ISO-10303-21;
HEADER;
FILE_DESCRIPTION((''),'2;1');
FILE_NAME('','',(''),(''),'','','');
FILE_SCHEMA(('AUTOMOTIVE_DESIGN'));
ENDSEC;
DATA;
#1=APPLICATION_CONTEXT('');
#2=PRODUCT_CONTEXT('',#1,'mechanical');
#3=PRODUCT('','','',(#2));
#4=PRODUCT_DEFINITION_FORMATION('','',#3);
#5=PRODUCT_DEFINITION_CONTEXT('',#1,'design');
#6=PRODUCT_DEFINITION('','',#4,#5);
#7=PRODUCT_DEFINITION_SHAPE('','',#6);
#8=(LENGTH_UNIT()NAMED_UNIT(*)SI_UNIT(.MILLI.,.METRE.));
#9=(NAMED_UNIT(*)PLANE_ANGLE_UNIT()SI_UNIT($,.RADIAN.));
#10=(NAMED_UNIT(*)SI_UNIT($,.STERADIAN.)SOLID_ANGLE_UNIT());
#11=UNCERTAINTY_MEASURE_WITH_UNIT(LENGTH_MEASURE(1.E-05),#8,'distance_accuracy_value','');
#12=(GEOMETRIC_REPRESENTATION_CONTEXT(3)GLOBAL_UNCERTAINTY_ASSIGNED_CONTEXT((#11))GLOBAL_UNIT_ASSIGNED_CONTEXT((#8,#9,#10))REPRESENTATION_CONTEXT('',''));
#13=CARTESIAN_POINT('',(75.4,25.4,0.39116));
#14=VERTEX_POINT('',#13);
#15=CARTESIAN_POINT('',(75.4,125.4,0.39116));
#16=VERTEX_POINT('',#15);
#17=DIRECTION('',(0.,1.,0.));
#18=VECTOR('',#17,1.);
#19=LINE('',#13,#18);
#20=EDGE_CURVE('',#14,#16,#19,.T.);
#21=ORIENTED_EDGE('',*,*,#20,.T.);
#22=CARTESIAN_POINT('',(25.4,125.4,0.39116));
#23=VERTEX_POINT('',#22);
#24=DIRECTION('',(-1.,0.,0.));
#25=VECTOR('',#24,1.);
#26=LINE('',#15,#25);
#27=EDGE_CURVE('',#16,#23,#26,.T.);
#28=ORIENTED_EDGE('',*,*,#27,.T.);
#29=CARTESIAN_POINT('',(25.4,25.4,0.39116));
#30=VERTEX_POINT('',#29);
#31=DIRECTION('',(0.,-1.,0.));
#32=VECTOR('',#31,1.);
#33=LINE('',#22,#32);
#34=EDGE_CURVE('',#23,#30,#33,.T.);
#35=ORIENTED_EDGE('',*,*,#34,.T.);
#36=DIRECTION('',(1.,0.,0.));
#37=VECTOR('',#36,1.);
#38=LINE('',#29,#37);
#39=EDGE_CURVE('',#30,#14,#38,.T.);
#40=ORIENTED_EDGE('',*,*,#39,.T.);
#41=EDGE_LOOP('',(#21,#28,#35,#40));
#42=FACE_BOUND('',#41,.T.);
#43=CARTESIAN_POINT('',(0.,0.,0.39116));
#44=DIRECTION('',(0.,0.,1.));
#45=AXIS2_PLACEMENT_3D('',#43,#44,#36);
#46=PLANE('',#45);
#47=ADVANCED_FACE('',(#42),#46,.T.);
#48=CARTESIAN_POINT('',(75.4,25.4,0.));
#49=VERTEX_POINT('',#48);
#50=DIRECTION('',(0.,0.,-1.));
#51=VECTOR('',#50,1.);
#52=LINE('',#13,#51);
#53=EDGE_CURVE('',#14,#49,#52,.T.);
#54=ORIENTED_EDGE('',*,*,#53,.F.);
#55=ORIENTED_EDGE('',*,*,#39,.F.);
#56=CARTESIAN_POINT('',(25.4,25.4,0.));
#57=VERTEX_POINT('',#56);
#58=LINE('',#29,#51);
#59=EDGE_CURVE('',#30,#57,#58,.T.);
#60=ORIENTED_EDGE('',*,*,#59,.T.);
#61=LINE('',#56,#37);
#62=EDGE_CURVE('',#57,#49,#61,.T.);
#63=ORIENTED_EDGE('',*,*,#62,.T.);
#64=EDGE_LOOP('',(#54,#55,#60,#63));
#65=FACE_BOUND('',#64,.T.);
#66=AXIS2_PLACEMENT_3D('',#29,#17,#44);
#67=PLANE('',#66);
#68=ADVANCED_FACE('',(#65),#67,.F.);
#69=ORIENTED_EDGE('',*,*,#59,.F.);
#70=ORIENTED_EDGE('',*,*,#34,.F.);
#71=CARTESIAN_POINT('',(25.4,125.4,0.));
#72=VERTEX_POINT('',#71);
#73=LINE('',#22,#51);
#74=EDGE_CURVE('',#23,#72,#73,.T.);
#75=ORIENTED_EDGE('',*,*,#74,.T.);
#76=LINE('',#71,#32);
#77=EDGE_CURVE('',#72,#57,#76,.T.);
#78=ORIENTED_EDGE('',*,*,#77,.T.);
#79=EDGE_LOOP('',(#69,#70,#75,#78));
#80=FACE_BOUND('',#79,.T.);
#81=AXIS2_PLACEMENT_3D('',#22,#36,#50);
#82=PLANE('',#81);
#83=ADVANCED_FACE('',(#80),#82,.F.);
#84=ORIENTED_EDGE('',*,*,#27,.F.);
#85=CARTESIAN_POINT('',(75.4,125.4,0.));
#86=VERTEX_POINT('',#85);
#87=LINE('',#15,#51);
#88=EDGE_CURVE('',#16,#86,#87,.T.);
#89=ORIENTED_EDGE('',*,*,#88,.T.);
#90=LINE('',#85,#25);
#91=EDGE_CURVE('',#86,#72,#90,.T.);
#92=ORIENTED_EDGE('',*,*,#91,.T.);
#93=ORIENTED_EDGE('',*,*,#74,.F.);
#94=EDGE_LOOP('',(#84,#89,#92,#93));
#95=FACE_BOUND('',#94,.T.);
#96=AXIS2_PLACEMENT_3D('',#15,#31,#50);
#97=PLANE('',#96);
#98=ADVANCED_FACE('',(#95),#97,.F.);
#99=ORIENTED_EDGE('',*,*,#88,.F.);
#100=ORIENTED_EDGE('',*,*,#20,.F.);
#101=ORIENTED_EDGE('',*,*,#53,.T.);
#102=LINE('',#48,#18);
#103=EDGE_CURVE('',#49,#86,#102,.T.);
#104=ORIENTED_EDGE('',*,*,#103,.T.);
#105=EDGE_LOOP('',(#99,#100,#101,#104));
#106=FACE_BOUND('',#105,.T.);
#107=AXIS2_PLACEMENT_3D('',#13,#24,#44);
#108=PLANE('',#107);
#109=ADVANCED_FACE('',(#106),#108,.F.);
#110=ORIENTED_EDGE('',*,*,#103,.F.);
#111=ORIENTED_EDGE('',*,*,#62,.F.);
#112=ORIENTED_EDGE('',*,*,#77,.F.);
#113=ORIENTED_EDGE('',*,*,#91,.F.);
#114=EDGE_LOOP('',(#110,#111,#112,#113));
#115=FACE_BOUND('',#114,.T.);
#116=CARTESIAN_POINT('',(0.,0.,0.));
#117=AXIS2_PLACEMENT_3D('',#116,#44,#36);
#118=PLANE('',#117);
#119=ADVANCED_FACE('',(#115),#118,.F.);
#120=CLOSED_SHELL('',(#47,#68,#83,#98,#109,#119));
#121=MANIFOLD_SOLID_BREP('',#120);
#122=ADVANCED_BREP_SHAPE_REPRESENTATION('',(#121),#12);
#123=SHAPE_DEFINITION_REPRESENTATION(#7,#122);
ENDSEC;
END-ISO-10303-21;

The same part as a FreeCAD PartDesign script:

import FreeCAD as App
import Part
import Sketcher
from FreeCAD import Vector
Q = App.Units.Quantity


def add_polygon(sketch, points):
    """Adds a closed chain of lines whose ends are joined by coincident constraints."""
    first, n = sketch.GeometryCount, len(points)
    for a, b in zip(points, points[1:] + points[:1]):
        sketch.addGeometry(Part.LineSegment(App.Vector(*a, 0), App.Vector(*b, 0)), False)
    for i in range(n):
        sketch.addConstraint(Sketcher.Constraint("Coincident", first + i, 2, first + (i + 1) % n, 1))

doc = App.newDocument("Part")
body = doc.addObject("PartDesign::Body", "Body")

# Sketch on XY plane
sketch1 = doc.addObject("Sketcher::SketchObject", "Sketch")
body.addObject(sketch1)
sketch1.AttachmentSupport = (doc.XY_Plane, [""])
sketch1.MapMode = "FlatFace"
add_polygon(sketch1, [(25.4, 125.4), (25.4, 25.4), (75.4, 25.4), (75.4, 125.4)])  # lines 0-3
sketch1.addConstraint(Sketcher.Constraint("Vertical", 0))
sketch1.addConstraint(Sketcher.Constraint("Horizontal", 1))
sketch1.addConstraint(Sketcher.Constraint("Vertical", 2))
sketch1.addConstraint(Sketcher.Constraint("Horizontal", 3))
sketch1.addConstraint(Sketcher.Constraint("DistanceX", 1, 1, 1, 2, Q("50 mm")))
sketch1.addConstraint(Sketcher.Constraint("DistanceY", 0, 2, 0, 1, Q("100 mm")))
sketch1.addConstraint(Sketcher.Constraint("DistanceX", -1, 1, 0, 2, Q("25.4 mm")))
sketch1.addConstraint(Sketcher.Constraint("DistanceY", -1, 1, 0, 2, Q("25.4 mm")))
pad1 = doc.addObject("PartDesign::Pad", "Pad")
body.addObject(pad1)
pad1.Profile = sketch1
pad1.Length = 0.39116

doc.recompute()
